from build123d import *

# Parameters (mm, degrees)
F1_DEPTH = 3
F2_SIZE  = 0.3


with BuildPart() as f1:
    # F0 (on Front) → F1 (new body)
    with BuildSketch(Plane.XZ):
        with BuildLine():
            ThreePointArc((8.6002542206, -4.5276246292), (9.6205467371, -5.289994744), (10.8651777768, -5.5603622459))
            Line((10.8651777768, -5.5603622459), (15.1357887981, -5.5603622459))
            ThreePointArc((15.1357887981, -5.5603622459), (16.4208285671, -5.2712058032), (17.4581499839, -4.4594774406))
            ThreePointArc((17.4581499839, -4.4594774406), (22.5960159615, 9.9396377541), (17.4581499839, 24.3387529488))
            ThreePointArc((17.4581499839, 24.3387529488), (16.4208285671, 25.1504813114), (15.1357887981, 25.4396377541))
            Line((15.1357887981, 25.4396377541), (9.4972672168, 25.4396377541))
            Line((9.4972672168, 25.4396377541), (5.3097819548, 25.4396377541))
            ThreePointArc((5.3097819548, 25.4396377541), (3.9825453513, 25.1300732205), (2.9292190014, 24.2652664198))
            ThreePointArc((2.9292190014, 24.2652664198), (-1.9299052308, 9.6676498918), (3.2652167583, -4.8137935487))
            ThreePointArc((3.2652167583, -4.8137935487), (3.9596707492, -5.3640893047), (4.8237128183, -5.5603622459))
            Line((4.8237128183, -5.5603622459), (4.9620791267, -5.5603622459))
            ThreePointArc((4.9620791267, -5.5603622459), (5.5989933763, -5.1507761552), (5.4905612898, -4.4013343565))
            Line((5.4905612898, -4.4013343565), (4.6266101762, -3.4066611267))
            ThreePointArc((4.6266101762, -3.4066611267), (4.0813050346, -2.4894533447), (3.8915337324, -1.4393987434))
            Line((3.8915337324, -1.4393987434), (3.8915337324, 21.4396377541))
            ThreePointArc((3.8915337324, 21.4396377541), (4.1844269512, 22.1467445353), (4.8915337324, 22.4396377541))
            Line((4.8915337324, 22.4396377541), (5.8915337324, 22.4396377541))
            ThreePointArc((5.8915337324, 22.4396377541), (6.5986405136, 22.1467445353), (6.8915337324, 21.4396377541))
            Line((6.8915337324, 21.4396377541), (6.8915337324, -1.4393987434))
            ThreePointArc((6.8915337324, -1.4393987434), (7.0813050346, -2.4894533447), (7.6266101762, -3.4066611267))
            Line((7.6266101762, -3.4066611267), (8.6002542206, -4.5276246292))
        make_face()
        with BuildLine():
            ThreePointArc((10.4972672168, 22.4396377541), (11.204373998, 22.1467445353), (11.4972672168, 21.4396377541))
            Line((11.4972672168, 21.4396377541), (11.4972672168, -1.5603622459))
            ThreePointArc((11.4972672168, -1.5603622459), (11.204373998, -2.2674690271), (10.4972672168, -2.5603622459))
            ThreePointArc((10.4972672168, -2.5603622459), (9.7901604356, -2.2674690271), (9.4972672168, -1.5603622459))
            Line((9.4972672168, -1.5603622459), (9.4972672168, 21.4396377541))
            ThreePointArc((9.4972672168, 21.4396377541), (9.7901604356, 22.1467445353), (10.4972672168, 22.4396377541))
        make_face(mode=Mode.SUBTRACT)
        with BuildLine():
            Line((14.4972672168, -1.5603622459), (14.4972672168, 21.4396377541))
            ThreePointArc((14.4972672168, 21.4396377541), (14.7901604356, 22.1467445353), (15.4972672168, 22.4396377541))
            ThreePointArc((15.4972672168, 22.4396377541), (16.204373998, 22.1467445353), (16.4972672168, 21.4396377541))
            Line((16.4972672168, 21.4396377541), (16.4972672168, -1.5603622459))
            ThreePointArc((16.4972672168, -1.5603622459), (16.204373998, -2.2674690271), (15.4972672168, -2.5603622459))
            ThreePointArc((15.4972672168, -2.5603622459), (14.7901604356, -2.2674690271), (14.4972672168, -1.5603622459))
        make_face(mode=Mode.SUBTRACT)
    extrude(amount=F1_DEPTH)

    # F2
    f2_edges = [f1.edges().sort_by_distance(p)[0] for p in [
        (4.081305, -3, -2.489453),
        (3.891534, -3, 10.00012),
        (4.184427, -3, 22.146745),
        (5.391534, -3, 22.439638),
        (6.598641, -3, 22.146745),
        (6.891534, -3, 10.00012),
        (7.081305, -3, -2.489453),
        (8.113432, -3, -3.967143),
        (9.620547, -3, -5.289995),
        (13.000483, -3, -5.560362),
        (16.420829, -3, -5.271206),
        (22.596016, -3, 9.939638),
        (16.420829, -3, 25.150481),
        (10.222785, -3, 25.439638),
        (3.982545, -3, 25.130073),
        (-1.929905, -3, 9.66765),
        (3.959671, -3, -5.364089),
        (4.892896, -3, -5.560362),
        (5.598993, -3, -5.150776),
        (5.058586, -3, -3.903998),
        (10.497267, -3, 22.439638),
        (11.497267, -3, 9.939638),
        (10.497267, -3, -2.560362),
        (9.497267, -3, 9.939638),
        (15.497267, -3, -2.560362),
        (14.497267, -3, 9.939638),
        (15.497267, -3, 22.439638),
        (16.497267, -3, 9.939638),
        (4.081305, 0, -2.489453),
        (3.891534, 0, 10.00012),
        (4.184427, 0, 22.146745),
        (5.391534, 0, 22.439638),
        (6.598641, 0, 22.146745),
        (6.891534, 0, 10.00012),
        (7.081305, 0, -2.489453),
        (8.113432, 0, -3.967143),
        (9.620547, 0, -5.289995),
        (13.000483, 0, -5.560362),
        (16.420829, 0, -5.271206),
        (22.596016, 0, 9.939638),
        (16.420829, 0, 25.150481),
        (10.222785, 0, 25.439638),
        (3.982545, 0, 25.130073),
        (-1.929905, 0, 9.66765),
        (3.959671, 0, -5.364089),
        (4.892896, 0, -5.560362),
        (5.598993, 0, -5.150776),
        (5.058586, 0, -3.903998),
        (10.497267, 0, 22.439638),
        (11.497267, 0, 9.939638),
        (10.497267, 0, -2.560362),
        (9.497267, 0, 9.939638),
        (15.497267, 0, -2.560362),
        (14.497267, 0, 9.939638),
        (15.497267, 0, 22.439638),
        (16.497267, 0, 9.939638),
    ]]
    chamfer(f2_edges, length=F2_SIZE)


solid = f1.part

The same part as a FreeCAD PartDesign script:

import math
import FreeCAD as App
import Part
import Sketcher

V = App.Vector
Q = App.Units.Quantity


def edges_at(feature, points):
    """Names of the edges that pass closest to the given points."""
    edges = feature.Shape.Edges
    near = lambda p: min(range(len(edges)), key=lambda i: edges[i].distToShape(Part.Vertex(*p))[0])
    return sorted({f"Edge{near(p) + 1}" for p in points})

doc = App.newDocument("Part")
body = doc.addObject("PartDesign::Body", "Body")

# Sketch on XZ plane
sketch1 = doc.addObject("Sketcher::SketchObject", "Sketch")
body.addObject(sketch1)
sketch1.AttachmentSupport = (doc.XZ_Plane, [""])
sketch1.MapMode = "FlatFace"
sketch1.addGeometry([
    Part.ArcOfCircle(Part.Circle(V(10.87, -2.56, 0), V(0, 0, 1), 3), math.radians(-139), math.radians(-90)),  # 0
    Part.LineSegment(V(10.87, -5.56, 0), V(15.14, -5.56, 0)),  # 1
    Part.ArcOfCircle(Part.Circle(V(15.14, -2.56, 0), V(0, 0, 1), 3), math.radians(-90), math.radians(-39)),  # 2
    Part.ArcOfCircle(Part.Circle(V(-0.15, 9.94, 0), V(0, 0, 1), 22.75), math.radians(-39), math.radians(39)),  # 3
    Part.ArcOfCircle(Part.Circle(V(15.14, 22.44, 0), V(0, 0, 1), 3), math.radians(39), math.radians(90)),  # 4
    Part.LineSegment(V(15.14, 25.44, 0), V(5.31, 25.44, 0)),  # 5
    Part.ArcOfCircle(Part.Circle(V(5.31, 22.44, 0), V(0, 0, 1), 3), math.radians(90), math.radians(143)),  # 6
    Part.ArcOfCircle(Part.Circle(V(21.61, 9.94, 0), V(0, 0, 1), 23.54), math.radians(143), math.radians(219)),  # 7
    Part.ArcOfCircle(Part.Circle(V(4.82, -3.56, 0), V(0, 0, 1), 2), math.radians(-141), math.radians(-90)),  # 8
    Part.LineSegment(V(4.82, -5.56, 0), V(4.96, -5.56, 0)),  # 9
    Part.ArcOfCircle(Part.Circle(V(4.96, -4.86, 0), V(0, 0, 1), 0.7), math.radians(-90), math.radians(41)),  # 10
    Part.LineSegment(V(5.49, -4.4, 0), V(4.63, -3.41, 0)),  # 11
    Part.ArcOfCircle(Part.Circle(V(6.89, -1.44, 0), V(0, 0, 1), 3), math.radians(180), math.radians(221)),  # 12
    Part.LineSegment(V(3.89, -1.44, 0), V(3.89, 21.44, 0)),  # 13
    Part.ArcOfCircle(Part.Circle(V(4.89, 21.44, 0), V(0, 0, 1), 1), math.radians(90), math.radians(180)),  # 14
    Part.LineSegment(V(4.89, 22.44, 0), V(5.89, 22.44, 0)),  # 15
    Part.ArcOfCircle(Part.Circle(V(5.89, 21.44, 0), V(0, 0, 1), 1), math.radians(0), math.radians(90)),  # 16
    Part.LineSegment(V(6.89, 21.44, 0), V(6.89, -1.44, 0)),  # 17
    Part.ArcOfCircle(Part.Circle(V(9.89, -1.44, 0), V(0, 0, 1), 3), math.radians(180), math.radians(221)),  # 18
    Part.LineSegment(V(7.63, -3.41, 0), V(8.6, -4.53, 0)),  # 19
    Part.ArcOfCircle(Part.Circle(V(10.5, 21.44, 0), V(0, 0, 1), 1), math.radians(90), math.radians(180)),  # 20
    Part.ArcOfCircle(Part.Circle(V(10.5, 21.44, 0), V(0, 0, 1), 1), math.radians(0), math.radians(90)),  # 21
    Part.LineSegment(V(11.5, 21.44, 0), V(11.5, -1.56, 0)),  # 22
    Part.ArcOfCircle(Part.Circle(V(10.5, -1.56, 0), V(0, 0, 1), 1), math.radians(-90), math.radians(0)),  # 23
    Part.ArcOfCircle(Part.Circle(V(10.5, -1.56, 0), V(0, 0, 1), 1), math.radians(180), math.radians(270)),  # 24
    Part.LineSegment(V(9.5, -1.56, 0), V(9.5, 21.44, 0)),  # 25
    Part.ArcOfCircle(Part.Circle(V(15.5, -1.56, 0), V(0, 0, 1), 1), math.radians(180), math.radians(270)),  # 26
    Part.LineSegment(V(14.5, -1.56, 0), V(14.5, 21.44, 0)),  # 27
    Part.ArcOfCircle(Part.Circle(V(15.5, 21.44, 0), V(0, 0, 1), 1), math.radians(90), math.radians(180)),  # 28
    Part.ArcOfCircle(Part.Circle(V(15.5, 21.44, 0), V(0, 0, 1), 1), math.radians(0), math.radians(90)),  # 29
    Part.LineSegment(V(16.5, 21.44, 0), V(16.5, -1.56, 0)),  # 30
    Part.ArcOfCircle(Part.Circle(V(15.5, -1.56, 0), V(0, 0, 1), 1), math.radians(-90), math.radians(0)),  # 31
], False)
sketch1.addConstraint([
    Sketcher.Constraint("Tangent", 0, 2, 1, 1),
    Sketcher.Constraint("Tangent", 1, 2, 2, 1),
    Sketcher.Constraint("Tangent", 2, 2, 3, 1),
    Sketcher.Constraint("Tangent", 3, 2, 4, 1),
    Sketcher.Constraint("Tangent", 4, 2, 5, 1),
    Sketcher.Constraint("Tangent", 5, 2, 6, 1),
    Sketcher.Constraint("Tangent", 6, 2, 7, 1),
    Sketcher.Constraint("Tangent", 7, 2, 8, 1),
    Sketcher.Constraint("Tangent", 8, 2, 9, 1),
    Sketcher.Constraint("Tangent", 9, 2, 10, 1),
    Sketcher.Constraint("Tangent", 10, 2, 11, 1),
    Sketcher.Constraint("Tangent", 11, 2, 12, 2),
    Sketcher.Constraint("Tangent", 12, 1, 13, 1),
    Sketcher.Constraint("Tangent", 13, 2, 14, 2),
    Sketcher.Constraint("Tangent", 14, 1, 15, 1),
    Sketcher.Constraint("Tangent", 15, 2, 16, 2),
    Sketcher.Constraint("Tangent", 16, 1, 17, 1),
    Sketcher.Constraint("Tangent", 17, 2, 18, 1),
    Sketcher.Constraint("Tangent", 18, 2, 19, 1),
    Sketcher.Constraint("Tangent", 19, 2, 0, 1),
    Sketcher.Constraint("Tangent", 20, 1, 21, 2),
    Sketcher.Constraint("Tangent", 21, 1, 22, 1),
    Sketcher.Constraint("Tangent", 22, 2, 23, 2),
    Sketcher.Constraint("Tangent", 23, 1, 24, 2),
    Sketcher.Constraint("Tangent", 24, 1, 25, 1),
    Sketcher.Constraint("Tangent", 25, 2, 20, 2),
    Sketcher.Constraint("Tangent", 26, 1, 27, 1),
    Sketcher.Constraint("Tangent", 27, 2, 28, 2),
    Sketcher.Constraint("Tangent", 28, 1, 29, 2),
    Sketcher.Constraint("Tangent", 29, 1, 30, 1),
    Sketcher.Constraint("Tangent", 30, 2, 31, 2),
    Sketcher.Constraint("Tangent", 31, 1, 26, 2),
    Sketcher.Constraint("Horizontal", 1),
    Sketcher.Constraint("Horizontal", 5),
    Sketcher.Constraint("Horizontal", 9),
    Sketcher.Constraint("Vertical", 13),
    Sketcher.Constraint("Horizontal", 15),
    Sketcher.Constraint("Vertical", 17),
    Sketcher.Constraint("Vertical", 22),
    Sketcher.Constraint("Vertical", 25),
    Sketcher.Constraint("Vertical", 27),
    Sketcher.Constraint("Vertical", 30),
    Sketcher.Constraint("Coincident", 17, 2, 12, 3),
    Sketcher.Constraint("Equal", 0, 2),
    Sketcher.Constraint("Equal", 2, 4),
    Sketcher.Constraint("Equal", 4, 6),
    Sketcher.Constraint("Equal", 6, 12),
    Sketcher.Constraint("Equal", 14, 16),
    Sketcher.Constraint("Equal", 12, 18),
    Sketcher.Constraint("Equal", 16, 20),
    Sketcher.Constraint("Equal", 20, 21),
    Sketcher.Constraint("Equal", 21, 23),
    Sketcher.Constraint("Equal", 24, 26),
    Sketcher.Constraint("Equal", 26, 28),
    Sketcher.Constraint("Equal", 28, 29),
    Sketcher.Constraint("Parallel", 11, 19),
    Sketcher.Constraint("Horizontal", 3, 3, 7, 3),
    Sketcher.Constraint("Horizontal", 16, 3, 20, 3),
    Sketcher.Constraint("Horizontal", 24, 3, 26, 3),
    Sketcher.Constraint("Horizontal", 21, 3, 28, 3),
    Sketcher.Constraint("Horizontal", 1, 2, 8, 2),
    Sketcher.Constraint("Horizontal", 6, 3, 14, 1),
    Sketcher.Constraint("Horizontal", 2, 3, 23, 1),
    Sketcher.Constraint("Vertical", 2, 3, 4, 3),
    Sketcher.Constraint("Vertical", 24, 3, 20, 1),
    Sketcher.Constraint("Vertical", 20, 1, 23, 1),
    Sketcher.Constraint("Vertical", 31, 3, 28, 1),
    Sketcher.Constraint("Vertical", 28, 1, 31, 1),
    Sketcher.Constraint("Radius", 0, Q("3 mm")),
    Sketcher.Constraint("Radius", 8, Q("2 mm")),
    Sketcher.Constraint("Radius", 14, Q("1 mm")),
    Sketcher.Constraint("Radius", 10, Q("0.7 mm")),
    Sketcher.Constraint("DistanceY", 22, 2, 22, 1, Q("23 mm")),
    Sketcher.Constraint("DistanceX", 23, 3, 26, 3, Q("5 mm")),
    Sketcher.Constraint("Radius", 7, Q("23.540869 mm")),
    Sketcher.Constraint("Radius", 3, Q("22.746038 mm")),
    Sketcher.Constraint("DistanceX", 1, 1, 1, 2, Q("4.270611 mm")),
    Sketcher.Constraint("DistanceY", 12, 3, -1, 1, Q("1.439399 mm")),
    Sketcher.Constraint("DistanceX", 10, 3, 0, 3, Q("5.903099 mm")),
    Sketcher.Constraint("DistanceY", 8, 3, 11, 2, Q("0.153701 mm")),
    Sketcher.Constraint("DistanceX", 5, 2, 5, 1, Q("9.826007 mm")),
    Sketcher.Constraint("DistanceX", -1, 1, 2, 3, Q("15.135789 mm")),
    Sketcher.Constraint("DistanceX", 20, 3, 4, 3, Q("4.638522 mm")),
])
pad1 = doc.addObject("PartDesign::Pad", "Pad")
body.addObject(pad1)
pad1.Profile = sketch1
pad1.Length = 3
doc.recompute()

chamfer = doc.addObject("PartDesign::Chamfer", "Chamfer")
body.addObject(chamfer)
chamfer.Base = (pad1, edges_at(pad1, [
    (4.081, -3, -2.489),
    (3.892, -3, 10),
    (4.184, -3, 22.147),
    (5.392, -3, 22.44),
    (6.599, -3, 22.147),
    (6.892, -3, 10),
    (7.081, -3, -2.489),
    (8.113, -3, -3.967),
    (9.621, -3, -5.29),
    (13, -3, -5.56),
    (16.421, -3, -5.271),
    (22.596, -3, 9.94),
    (16.421, -3, 25.15),
    (10.223, -3, 25.44),
    (3.983, -3, 25.13),
    (-1.93, -3, 9.668),
    (3.96, -3, -5.364),
    (4.893, -3, -5.56),
    (5.599, -3, -5.151),
    (5.059, -3, -3.904),
    (9.79, -3, 22.147),
    (11.497, -3, 9.94),
    (9.79, -3, -2.267),
    (9.497, -3, 9.94),
    (14.79, -3, -2.267),
    (14.497, -3, 9.94),
    (14.79, -3, 22.147),
    (16.497, -3, 9.94),
    (4.081, 0, -2.489),
    (3.892, 0, 10),
    (4.184, 0, 22.147),
    (5.392, 0, 22.44),
    (6.599, 0, 22.147),
    (6.892, 0, 10),
    (7.081, 0, -2.489),
    (8.113, 0, -3.967),
    (9.621, 0, -5.29),
    (13, 0, -5.56),
    (16.421, 0, -5.271),
    (22.596, 0, 9.94),
    (16.421, 0, 25.15),
    (10.223, 0, 25.44),
    (3.983, 0, 25.13),
    (-1.93, 0, 9.668),
    (3.96, 0, -5.364),
    (4.893, 0, -5.56),
    (5.599, 0, -5.151),
    (5.059, 0, -3.904),
    (9.79, 0, 22.147),
    (11.497, 0, 9.94),
    (9.79, 0, -2.267),
    (9.497, 0, 9.94),
    (14.79, 0, -2.267),
    (14.497, 0, 9.94),
    (14.79, 0, 22.147),
    (16.497, 0, 9.94),
]))
chamfer.Size = 0.3

doc.recompute()
